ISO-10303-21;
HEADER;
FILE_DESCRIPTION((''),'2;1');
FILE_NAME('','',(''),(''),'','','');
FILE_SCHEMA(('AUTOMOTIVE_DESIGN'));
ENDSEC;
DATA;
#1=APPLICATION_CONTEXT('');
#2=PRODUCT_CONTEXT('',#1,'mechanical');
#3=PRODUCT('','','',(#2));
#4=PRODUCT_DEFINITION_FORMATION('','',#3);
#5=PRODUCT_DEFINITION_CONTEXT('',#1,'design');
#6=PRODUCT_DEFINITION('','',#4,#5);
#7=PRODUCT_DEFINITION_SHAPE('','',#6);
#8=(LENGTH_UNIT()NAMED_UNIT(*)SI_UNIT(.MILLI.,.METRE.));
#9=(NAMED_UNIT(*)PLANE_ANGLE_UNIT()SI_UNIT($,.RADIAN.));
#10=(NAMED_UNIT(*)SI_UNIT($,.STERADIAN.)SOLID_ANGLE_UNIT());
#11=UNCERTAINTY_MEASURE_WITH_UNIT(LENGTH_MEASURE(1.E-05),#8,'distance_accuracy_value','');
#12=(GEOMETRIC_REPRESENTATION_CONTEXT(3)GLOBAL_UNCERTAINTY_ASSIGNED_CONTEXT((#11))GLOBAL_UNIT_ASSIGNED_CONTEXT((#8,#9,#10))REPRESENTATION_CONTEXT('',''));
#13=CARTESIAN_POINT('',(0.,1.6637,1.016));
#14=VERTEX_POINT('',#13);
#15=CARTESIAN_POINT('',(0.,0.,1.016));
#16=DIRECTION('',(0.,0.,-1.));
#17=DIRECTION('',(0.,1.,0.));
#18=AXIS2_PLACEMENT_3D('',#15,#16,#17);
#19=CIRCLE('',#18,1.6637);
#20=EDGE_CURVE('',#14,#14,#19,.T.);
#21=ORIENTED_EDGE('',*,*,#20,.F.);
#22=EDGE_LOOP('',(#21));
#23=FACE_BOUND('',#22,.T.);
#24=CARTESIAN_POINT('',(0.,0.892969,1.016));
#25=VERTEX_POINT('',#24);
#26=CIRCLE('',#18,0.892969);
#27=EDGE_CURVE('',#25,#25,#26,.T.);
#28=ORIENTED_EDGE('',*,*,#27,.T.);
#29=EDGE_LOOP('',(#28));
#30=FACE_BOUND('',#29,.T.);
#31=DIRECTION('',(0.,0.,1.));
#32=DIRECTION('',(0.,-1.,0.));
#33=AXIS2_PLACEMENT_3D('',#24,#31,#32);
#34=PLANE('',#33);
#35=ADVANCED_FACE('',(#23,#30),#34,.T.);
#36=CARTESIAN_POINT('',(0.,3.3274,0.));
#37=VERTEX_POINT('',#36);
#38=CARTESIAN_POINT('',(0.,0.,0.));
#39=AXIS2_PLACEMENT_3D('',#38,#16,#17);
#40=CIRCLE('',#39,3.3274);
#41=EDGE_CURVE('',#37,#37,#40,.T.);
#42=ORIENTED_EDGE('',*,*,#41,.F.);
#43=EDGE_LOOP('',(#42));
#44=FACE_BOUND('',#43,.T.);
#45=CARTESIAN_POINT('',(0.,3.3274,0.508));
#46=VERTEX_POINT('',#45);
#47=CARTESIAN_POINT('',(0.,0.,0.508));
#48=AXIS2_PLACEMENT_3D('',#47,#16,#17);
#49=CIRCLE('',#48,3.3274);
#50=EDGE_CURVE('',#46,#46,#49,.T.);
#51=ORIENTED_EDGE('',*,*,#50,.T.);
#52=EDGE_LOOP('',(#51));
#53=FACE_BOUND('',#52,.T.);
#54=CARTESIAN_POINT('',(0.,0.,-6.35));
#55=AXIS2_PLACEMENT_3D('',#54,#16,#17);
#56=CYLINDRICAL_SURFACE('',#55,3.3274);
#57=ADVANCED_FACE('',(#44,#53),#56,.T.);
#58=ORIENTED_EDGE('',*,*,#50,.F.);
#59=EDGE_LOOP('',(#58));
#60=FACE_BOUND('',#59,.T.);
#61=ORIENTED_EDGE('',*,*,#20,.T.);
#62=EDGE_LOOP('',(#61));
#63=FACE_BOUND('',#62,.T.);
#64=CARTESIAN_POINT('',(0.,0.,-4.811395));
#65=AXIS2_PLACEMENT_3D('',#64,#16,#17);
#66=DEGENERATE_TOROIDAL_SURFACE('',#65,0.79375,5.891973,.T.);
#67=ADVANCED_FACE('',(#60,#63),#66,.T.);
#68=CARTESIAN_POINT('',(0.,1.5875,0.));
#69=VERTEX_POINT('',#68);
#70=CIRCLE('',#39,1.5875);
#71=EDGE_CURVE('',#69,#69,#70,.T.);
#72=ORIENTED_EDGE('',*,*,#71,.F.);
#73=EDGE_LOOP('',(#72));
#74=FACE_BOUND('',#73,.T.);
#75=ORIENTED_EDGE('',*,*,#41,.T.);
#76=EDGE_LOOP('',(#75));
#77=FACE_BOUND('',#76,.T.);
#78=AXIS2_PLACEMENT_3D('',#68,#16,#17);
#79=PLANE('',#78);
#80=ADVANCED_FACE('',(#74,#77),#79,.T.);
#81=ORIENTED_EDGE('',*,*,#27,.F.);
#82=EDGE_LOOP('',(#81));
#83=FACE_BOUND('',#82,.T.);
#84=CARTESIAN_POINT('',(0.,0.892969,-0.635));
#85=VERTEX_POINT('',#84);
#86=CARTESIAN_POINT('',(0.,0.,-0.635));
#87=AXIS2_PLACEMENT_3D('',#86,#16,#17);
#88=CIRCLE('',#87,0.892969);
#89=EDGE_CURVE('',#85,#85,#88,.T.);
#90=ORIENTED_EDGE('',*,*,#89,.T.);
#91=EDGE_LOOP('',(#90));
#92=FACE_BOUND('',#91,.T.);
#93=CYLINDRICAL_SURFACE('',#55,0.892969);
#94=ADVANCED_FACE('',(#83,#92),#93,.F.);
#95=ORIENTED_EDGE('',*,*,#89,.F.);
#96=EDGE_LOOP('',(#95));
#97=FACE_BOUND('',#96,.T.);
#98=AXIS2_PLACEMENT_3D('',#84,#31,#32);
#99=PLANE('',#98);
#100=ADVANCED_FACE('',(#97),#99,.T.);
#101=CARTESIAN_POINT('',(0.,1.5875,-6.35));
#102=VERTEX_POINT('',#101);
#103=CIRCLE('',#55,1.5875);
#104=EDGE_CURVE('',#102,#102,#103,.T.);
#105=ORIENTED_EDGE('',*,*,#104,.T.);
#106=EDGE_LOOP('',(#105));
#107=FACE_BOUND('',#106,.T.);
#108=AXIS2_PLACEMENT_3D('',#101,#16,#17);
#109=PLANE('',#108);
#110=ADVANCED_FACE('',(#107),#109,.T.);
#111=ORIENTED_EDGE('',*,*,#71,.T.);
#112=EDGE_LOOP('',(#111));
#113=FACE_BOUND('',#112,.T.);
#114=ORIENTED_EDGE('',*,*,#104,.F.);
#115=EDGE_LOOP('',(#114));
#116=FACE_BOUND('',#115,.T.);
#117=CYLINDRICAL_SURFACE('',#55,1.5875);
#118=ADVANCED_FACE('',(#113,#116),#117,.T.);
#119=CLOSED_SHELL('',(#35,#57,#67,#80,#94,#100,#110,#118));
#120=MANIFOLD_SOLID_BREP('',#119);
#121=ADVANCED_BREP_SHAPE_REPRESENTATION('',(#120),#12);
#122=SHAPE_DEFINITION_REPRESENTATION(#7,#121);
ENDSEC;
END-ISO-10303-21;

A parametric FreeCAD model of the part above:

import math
import FreeCAD as App
import Part
import Sketcher

V = App.Vector
Q = App.Units.Quantity

doc = App.newDocument("Part")
body = doc.addObject("PartDesign::Body", "Body")

# Sketch on YZ plane
sketch1 = doc.addObject("Sketcher::SketchObject", "Sketch")
body.addObject(sketch1)
sketch1.AttachmentSupport = (doc.YZ_Plane, [""])
sketch1.MapMode = "FlatFace"
sketch1.addGeometry(Part.LineSegment(V(1.5875, -6.35, 0), V(1.5875, 0, 0)), False)
sketch1.addGeometry(Part.LineSegment(V(1.5875, 0, 0), V(3.3274, 0, 0)), False)
sketch1.addGeometry(Part.LineSegment(V(3.3274, 0, 0), V(3.3274, 0.508, 0)), False)
sketch1.addGeometry(Part.ArcOfCircle(Part.Circle(V(0.79375, -4.811395, 0), V(0, 0, 1), 5.891973), math.radians(64.531345), math.radians(81.509233)), False)
sketch1.addGeometry(Part.LineSegment(V(1.6637, 1.016, 0), V(0.892969, 1.016, 0)), False)
sketch1.addGeometry(Part.LineSegment(V(0.892969, 1.016, 0), V(0.892969, -0.635, 0)), False)
sketch1.addGeometry(Part.LineSegment(V(0.892969, -0.635, 0), V(0, -0.635, 0)), False)
sketch1.addGeometry(Part.LineSegment(V(0, -0.635, 0), V(0, -6.35, 0)), False)
sketch1.addGeometry(Part.LineSegment(V(0, -6.35, 0), V(1.5875, -6.35, 0)), False)
sketch1.addConstraint(Sketcher.Constraint("Coincident", 0, 2, 1, 1))
sketch1.addConstraint(Sketcher.Constraint("Coincident", 1, 2, 2, 1))
sketch1.addConstraint(Sketcher.Constraint("Coincident", 2, 2, 3, 1))
sketch1.addConstraint(Sketcher.Constraint("Coincident", 3, 2, 4, 1))
sketch1.addConstraint(Sketcher.Constraint("Coincident", 4, 2, 5, 1))
sketch1.addConstraint(Sketcher.Constraint("Coincident", 5, 2, 6, 1))
sketch1.addConstraint(Sketcher.Constraint("Coincident", 6, 2, 7, 1))
sketch1.addConstraint(Sketcher.Constraint("Coincident", 7, 2, 8, 1))
sketch1.addConstraint(Sketcher.Constraint("Coincident", 8, 2, 0, 1))
sketch1.addConstraint(Sketcher.Constraint("Vertical", 0))
sketch1.addConstraint(Sketcher.Constraint("Horizontal", 1))
sketch1.addConstraint(Sketcher.Constraint("Vertical", 2))
sketch1.addConstraint(Sketcher.Constraint("Horizontal", 4))
sketch1.addConstraint(Sketcher.Constraint("Vertical", 5))
sketch1.addConstraint(Sketcher.Constraint("Horizontal", 6))
sketch1.addConstraint(Sketcher.Constraint("Vertical", 7))
sketch1.addConstraint(Sketcher.Constraint("Horizontal", 8))
sketch1.addConstraint(Sketcher.Constraint("PointOnObject", 0, 2, -1))
sketch1.addConstraint(Sketcher.Constraint("PointOnObject", 6, 2, -2))
sketch1.addConstraint(Sketcher.Constraint("DistanceY", 0, 1, 0, 2, Q("0.25 in")))
sketch1.addConstraint(Sketcher.Constraint("DistanceY", 2, 1, 2, 2, Q("0.02 in")))
sketch1.addConstraint(Sketcher.Constraint("DistanceX", 8, 1, 8, 2, Q("0.0625 in")))
sketch1.addConstraint(Sketcher.Constraint("DistanceY", 5, 2, 5, 1, Q("0.065 in")))
sketch1.addConstraint(Sketcher.Constraint("DistanceY", 7, 2, 7, 1, Q("0.225 in")))
sketch1.addConstraint(Sketcher.Constraint("DistanceX", 1, 1, 1, 2, Q("0.0685 in")))
sketch1.addConstraint(Sketcher.Constraint("DistanceX", -1, 1, 3, 3, Q("0.03125 in")))
sketch1.addConstraint(Sketcher.Constraint("DistanceX", 0, 2, 3, 2, Q("0.003 in")))
sketch1.addConstraint(Sketcher.Constraint("DistanceX", 4, 2, 4, 1, Q("0.770731 mm")))
revolution = doc.addObject("PartDesign::Revolution", "Revolution")
body.addObject(revolution)
revolution.Profile = sketch1
revolution.ReferenceAxis = (sketch1, ["V_Axis"])
revolution.Angle = 360

doc.recompute()
